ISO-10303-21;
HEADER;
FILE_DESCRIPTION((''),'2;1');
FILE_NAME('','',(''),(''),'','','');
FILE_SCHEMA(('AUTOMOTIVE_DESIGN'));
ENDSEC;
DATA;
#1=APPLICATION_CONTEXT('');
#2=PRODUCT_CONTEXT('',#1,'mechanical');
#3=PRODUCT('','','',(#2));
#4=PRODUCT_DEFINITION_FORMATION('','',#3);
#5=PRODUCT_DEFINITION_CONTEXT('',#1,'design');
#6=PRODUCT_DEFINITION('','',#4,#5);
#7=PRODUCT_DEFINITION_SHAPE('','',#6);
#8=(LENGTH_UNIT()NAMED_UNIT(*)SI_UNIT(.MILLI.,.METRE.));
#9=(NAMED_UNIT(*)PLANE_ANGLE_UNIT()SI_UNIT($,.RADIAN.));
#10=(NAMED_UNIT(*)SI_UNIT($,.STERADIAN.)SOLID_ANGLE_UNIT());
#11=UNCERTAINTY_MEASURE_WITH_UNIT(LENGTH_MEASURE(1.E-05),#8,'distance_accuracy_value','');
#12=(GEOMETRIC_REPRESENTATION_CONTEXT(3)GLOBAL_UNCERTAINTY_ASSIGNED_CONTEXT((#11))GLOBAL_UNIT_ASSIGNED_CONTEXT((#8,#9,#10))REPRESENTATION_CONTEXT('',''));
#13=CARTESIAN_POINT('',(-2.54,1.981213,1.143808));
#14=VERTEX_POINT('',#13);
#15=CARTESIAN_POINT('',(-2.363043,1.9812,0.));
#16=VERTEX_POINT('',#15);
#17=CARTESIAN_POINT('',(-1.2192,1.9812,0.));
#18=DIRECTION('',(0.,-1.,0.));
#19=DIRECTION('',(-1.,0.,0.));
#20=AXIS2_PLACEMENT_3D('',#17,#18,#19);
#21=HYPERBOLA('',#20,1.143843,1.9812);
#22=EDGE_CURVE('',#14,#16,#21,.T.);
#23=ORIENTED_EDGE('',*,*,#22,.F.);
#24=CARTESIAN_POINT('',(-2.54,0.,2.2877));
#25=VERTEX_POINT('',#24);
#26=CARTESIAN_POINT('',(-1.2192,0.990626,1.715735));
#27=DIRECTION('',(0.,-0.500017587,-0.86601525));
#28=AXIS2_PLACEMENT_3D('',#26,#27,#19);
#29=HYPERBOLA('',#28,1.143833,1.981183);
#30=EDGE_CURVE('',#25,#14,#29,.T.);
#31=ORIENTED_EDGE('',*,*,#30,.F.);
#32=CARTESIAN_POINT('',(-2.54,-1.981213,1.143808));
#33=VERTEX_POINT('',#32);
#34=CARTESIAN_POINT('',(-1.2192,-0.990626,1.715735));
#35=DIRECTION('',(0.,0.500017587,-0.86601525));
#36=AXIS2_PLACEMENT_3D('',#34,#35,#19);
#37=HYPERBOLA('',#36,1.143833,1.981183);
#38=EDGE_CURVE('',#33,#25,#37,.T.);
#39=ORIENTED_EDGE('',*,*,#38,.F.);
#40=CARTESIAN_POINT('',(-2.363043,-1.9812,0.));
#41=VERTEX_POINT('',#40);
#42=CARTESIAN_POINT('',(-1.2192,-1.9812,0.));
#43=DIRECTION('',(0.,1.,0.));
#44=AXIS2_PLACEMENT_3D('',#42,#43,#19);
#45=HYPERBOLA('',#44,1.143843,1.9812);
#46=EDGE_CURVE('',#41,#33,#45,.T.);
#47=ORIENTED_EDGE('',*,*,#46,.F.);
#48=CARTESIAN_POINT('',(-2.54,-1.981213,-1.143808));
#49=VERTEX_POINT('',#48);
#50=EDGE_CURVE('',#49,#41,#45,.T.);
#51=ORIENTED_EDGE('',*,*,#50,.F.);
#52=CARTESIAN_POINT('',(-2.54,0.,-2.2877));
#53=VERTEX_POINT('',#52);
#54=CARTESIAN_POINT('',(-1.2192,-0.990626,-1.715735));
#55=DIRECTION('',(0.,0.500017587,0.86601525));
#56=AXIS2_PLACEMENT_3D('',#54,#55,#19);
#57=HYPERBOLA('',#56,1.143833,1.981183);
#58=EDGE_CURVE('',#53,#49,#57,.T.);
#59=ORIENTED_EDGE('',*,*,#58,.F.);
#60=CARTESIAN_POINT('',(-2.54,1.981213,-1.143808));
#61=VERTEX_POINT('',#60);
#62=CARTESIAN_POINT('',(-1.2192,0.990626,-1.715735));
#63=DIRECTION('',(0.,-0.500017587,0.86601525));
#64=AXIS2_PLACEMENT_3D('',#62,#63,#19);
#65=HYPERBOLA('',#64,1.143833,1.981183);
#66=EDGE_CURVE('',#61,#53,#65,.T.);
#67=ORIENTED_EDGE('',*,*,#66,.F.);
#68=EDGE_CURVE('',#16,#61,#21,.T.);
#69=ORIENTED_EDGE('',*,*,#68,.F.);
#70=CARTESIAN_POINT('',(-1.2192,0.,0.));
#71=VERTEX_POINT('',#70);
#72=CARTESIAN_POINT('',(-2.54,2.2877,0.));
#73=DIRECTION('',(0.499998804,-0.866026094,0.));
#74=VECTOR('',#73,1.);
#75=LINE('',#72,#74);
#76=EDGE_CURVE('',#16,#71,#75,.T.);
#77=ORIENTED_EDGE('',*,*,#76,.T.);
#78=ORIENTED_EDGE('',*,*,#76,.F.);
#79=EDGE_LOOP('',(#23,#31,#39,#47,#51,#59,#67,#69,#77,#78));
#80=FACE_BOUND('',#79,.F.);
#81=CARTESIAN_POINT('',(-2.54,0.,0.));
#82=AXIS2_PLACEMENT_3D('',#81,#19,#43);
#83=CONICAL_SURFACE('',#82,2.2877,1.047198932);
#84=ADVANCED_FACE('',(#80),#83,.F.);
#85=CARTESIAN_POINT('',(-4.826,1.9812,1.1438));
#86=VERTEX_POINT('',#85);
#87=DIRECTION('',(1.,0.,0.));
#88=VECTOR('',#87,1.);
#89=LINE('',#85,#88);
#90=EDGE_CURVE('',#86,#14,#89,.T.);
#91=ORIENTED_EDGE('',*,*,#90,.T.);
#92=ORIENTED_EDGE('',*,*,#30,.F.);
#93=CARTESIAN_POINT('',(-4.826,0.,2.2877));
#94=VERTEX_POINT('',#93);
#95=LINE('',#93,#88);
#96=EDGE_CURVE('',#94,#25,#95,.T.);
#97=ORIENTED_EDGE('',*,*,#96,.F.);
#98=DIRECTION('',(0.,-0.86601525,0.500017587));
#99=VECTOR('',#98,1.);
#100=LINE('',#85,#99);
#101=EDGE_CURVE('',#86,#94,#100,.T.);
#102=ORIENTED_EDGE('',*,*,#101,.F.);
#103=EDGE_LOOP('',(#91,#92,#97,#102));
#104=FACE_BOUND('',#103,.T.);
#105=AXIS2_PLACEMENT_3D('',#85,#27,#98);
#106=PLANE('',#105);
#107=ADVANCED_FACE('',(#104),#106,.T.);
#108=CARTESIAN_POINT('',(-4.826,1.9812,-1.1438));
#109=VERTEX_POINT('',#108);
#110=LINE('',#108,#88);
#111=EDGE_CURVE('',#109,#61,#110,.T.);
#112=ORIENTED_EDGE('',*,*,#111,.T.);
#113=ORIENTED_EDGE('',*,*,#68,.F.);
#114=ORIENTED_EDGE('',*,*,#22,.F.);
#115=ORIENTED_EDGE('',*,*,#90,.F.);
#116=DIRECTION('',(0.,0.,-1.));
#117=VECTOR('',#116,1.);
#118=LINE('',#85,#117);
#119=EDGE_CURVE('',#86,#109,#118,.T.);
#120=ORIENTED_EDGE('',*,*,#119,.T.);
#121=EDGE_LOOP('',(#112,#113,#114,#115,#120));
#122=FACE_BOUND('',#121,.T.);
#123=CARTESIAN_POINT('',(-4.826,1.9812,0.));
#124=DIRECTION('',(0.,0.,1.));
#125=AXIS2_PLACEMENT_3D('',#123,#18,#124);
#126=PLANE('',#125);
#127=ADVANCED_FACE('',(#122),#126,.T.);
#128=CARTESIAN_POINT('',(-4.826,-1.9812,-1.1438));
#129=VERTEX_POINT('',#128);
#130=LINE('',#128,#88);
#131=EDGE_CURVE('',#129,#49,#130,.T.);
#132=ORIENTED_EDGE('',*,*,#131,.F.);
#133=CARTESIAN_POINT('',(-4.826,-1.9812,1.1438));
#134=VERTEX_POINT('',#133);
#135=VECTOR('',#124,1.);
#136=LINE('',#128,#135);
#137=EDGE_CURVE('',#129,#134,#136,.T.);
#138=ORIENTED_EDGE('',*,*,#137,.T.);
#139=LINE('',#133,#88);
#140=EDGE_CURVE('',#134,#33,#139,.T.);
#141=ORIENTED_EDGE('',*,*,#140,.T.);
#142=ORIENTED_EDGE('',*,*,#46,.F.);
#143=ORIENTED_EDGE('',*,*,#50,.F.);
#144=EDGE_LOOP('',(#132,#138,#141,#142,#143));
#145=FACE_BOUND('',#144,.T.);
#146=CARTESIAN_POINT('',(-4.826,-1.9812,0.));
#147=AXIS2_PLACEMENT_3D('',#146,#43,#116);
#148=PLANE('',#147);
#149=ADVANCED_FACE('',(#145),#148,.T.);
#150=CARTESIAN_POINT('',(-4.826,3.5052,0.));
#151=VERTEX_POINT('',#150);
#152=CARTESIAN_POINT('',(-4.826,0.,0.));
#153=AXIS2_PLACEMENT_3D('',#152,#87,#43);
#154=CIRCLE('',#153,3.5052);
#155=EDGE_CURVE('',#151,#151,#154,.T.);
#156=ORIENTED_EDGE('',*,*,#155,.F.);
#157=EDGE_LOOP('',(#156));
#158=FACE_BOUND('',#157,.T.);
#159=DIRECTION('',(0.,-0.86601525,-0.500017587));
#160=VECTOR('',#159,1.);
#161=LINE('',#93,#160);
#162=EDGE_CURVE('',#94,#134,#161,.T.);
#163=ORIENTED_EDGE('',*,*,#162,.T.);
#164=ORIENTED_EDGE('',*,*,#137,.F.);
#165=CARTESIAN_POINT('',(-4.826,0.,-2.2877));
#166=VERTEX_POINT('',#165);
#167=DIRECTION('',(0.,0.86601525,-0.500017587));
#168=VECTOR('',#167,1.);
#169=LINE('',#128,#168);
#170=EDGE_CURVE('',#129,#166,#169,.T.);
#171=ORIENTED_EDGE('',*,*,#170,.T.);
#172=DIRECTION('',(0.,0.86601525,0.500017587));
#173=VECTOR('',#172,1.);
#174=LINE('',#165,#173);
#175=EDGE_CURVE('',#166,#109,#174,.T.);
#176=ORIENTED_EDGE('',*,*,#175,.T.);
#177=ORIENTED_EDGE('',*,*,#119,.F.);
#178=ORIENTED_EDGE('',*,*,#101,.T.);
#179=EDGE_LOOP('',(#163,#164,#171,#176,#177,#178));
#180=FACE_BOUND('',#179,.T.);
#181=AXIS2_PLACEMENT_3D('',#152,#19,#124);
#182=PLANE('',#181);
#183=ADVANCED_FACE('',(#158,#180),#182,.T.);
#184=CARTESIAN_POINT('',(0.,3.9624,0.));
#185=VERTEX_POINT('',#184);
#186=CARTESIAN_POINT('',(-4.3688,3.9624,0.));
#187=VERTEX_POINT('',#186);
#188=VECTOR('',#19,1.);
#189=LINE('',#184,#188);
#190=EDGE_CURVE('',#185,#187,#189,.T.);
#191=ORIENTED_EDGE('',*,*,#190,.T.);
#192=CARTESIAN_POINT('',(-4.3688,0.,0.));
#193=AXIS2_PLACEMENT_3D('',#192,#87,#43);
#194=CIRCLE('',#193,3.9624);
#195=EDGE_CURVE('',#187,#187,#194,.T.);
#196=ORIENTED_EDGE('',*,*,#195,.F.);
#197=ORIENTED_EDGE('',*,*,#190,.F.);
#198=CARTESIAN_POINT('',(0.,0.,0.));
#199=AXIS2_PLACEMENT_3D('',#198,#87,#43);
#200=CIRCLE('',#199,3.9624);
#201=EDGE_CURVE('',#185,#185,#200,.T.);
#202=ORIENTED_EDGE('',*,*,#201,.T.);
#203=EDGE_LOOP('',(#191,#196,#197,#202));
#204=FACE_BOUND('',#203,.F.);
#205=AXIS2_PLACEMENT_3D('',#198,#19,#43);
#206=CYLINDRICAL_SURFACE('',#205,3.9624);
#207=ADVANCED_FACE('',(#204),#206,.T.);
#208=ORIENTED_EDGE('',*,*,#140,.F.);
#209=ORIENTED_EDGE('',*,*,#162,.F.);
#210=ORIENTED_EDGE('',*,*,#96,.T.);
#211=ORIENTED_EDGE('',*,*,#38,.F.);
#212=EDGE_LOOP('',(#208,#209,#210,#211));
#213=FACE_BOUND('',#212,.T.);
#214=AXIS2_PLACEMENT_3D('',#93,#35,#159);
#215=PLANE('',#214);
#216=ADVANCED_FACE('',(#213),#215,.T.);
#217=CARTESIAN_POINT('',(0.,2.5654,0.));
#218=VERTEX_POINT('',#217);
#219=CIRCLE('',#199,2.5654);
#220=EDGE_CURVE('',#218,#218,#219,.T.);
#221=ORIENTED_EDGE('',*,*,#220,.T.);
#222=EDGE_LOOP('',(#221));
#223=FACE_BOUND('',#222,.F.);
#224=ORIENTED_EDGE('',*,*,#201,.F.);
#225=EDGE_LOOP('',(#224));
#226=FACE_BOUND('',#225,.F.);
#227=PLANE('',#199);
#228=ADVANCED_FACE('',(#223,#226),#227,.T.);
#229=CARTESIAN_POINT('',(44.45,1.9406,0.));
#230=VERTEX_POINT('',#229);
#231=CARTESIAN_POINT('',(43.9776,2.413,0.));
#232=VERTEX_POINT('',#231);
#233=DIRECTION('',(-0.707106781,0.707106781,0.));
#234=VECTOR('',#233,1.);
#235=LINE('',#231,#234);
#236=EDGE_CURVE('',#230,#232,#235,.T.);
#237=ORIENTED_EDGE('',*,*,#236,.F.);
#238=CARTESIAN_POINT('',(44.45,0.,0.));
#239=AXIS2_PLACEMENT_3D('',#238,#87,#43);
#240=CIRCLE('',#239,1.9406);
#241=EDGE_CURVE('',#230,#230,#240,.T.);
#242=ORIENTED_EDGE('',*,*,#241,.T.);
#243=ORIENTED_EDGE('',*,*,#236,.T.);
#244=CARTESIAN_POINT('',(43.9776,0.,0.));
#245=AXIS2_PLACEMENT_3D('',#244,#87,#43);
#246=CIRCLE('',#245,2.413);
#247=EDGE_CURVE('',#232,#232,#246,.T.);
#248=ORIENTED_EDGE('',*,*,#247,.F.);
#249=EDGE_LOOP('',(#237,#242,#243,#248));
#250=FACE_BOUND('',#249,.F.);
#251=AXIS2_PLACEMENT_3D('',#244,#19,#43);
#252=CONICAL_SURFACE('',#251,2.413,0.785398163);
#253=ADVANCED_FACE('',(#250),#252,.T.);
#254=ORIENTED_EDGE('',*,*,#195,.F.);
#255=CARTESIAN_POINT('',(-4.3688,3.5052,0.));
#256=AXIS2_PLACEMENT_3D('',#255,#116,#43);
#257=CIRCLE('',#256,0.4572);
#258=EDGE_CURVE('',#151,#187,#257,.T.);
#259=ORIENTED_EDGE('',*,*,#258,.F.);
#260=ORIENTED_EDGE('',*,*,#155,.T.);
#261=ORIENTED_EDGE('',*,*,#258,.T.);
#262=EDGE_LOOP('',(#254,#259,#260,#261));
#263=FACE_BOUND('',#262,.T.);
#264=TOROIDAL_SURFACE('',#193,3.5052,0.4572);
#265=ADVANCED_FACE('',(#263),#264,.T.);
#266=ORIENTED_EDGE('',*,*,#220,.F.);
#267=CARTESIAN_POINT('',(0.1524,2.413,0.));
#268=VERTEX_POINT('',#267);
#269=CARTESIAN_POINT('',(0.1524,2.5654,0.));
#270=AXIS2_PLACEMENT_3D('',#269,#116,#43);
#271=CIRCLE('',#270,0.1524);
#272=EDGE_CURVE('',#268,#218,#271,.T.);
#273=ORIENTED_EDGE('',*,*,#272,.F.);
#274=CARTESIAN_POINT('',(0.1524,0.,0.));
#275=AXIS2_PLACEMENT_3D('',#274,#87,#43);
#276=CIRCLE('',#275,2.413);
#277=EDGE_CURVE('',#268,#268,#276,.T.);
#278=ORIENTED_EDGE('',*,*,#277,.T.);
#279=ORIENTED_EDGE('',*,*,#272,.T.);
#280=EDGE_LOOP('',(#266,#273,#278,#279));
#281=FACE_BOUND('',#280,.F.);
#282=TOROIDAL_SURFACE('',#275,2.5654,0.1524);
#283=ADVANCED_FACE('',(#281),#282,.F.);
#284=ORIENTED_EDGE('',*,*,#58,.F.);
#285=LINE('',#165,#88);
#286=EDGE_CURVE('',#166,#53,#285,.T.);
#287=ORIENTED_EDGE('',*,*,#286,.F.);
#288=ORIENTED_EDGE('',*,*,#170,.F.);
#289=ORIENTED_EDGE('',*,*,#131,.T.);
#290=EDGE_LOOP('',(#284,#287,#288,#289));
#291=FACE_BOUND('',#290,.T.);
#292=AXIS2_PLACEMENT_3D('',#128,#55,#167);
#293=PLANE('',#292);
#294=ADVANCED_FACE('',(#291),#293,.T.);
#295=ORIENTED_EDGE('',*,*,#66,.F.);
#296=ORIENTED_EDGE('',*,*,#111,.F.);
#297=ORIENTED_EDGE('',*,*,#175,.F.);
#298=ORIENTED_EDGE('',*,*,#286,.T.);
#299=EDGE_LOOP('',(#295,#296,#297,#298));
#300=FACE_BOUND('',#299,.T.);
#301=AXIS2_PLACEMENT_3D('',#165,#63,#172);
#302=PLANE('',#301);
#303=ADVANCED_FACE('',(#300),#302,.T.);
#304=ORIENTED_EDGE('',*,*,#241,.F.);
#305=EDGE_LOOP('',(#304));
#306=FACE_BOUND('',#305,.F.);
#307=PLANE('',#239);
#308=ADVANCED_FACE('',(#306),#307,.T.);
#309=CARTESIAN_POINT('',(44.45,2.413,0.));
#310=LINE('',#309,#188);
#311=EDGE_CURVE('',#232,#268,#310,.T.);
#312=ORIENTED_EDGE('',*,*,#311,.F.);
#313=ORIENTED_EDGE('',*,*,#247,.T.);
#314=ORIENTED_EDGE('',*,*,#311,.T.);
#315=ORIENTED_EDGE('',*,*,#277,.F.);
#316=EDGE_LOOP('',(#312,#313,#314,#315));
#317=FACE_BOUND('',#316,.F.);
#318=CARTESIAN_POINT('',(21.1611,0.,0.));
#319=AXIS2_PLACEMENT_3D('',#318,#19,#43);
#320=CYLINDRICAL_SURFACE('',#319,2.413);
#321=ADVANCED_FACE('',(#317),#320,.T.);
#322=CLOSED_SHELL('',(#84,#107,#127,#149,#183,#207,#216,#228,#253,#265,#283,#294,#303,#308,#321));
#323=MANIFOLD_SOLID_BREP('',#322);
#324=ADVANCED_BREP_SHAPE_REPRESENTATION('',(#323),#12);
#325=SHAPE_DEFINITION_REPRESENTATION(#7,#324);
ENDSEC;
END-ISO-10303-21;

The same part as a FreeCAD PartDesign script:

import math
import FreeCAD as App
import Part
import Sketcher
Q = App.Units.Quantity


def edges_at(feature, points):
    """Names of the edges that pass closest to the given points."""
    edges = feature.Shape.Edges
    near = lambda p: min(range(len(edges)), key=lambda i: edges[i].distToShape(Part.Vertex(*p))[0])
    return sorted({f"Edge{near(p) + 1}" for p in points})


def add_polygon(sketch, points):
    """Adds a closed chain of lines whose ends are joined by coincident constraints."""
    first, n = sketch.GeometryCount, len(points)
    for a, b in zip(points, points[1:] + points[:1]):
        sketch.addGeometry(Part.LineSegment(App.Vector(*a, 0), App.Vector(*b, 0)), False)
    for i in range(n):
        sketch.addConstraint(Sketcher.Constraint("Coincident", first + i, 2, first + (i + 1) % n, 1))

doc = App.newDocument("Part")
body = doc.addObject("PartDesign::Body", "Body")

# Sketch on XY plane
sketch1 = doc.addObject("Sketcher::SketchObject", "Sketch")
body.addObject(sketch1)
sketch1.AttachmentSupport = (doc.XY_Plane, [""])
sketch1.MapMode = "FlatFace"
add_polygon(sketch1, [(-2.54, 2.2877), (-1.2192, 0), (44.45, 0), (44.45, 2.413), (0, 2.413), (0, 3.9624), (-4.826, 3.9624), (-4.826, 2.2877)])  # lines 0-7
sketch1.addConstraint(Sketcher.Constraint("Horizontal", 1))
sketch1.addConstraint(Sketcher.Constraint("Vertical", 2))
sketch1.addConstraint(Sketcher.Constraint("Horizontal", 3))
sketch1.addConstraint(Sketcher.Constraint("Vertical", 4))
sketch1.addConstraint(Sketcher.Constraint("Horizontal", 5))
sketch1.addConstraint(Sketcher.Constraint("Vertical", 6))
sketch1.addConstraint(Sketcher.Constraint("Horizontal", 7))
sketch1.addConstraint(Sketcher.Constraint("PointOnObject", 0, 2, -1))
sketch1.addConstraint(Sketcher.Constraint("PointOnObject", 3, 2, -2))
sketch1.addConstraint(Sketcher.Constraint("Angle", 0, Q("-60 deg")))
sketch1.addConstraint(Sketcher.Constraint("DistanceX", 3, 2, 3, 1, Q("1.75 in")))
sketch1.addConstraint(Sketcher.Constraint("DistanceX", 5, 2, 5, 1, Q("0.19 in")))
sketch1.addConstraint(Sketcher.Constraint("DistanceX", 7, 1, 7, 2, Q("0.09 in")))
sketch1.addConstraint(Sketcher.Constraint("DistanceX", 1, 1, 1, 2, Q("1.798 in")))
sketch1.addConstraint(Sketcher.Constraint("DistanceY", 2, 1, 2, 2, Q("0.095 in")))
sketch1.addConstraint(Sketcher.Constraint("DistanceY", 4, 1, 4, 2, Q("0.061 in")))
revolution = doc.addObject("PartDesign::Revolution", "Revolution")
body.addObject(revolution)
revolution.Profile = sketch1
revolution.ReferenceAxis = (sketch1, ["H_Axis"])
revolution.Angle = 360

# Sketch on YZ plane
sketch2 = doc.addObject("Sketcher::SketchObject", "Sketch001")
body.addObject(sketch2)
sketch2.AttachmentSupport = (doc.YZ_Plane, [""])
sketch2.MapMode = "FlatFace"
sketch2.AttachmentOffset = App.Placement(App.Vector(0, 0, -0.19 * 25.4), App.Rotation())
sketch2.addGeometry(Part.LineSegment(App.Vector(1.9812, 1.1438, 0), App.Vector(0, 2.2877, 0)), False)
sketch2.addGeometry(Part.ArcOfCircle(Part.Circle(App.Vector(0, 0, 0), App.Vector(0, 0, 1), 2.2877), math.radians(29.998995), math.radians(90)), False)
sketch2.addGeometry(Part.ArcOfCircle(Part.Circle(App.Vector(0, 0, 0), App.Vector(0, 0, 1), 2.2877), math.radians(90), math.radians(150.001005)), False)
sketch2.addGeometry(Part.LineSegment(App.Vector(0, 2.2877, 0), App.Vector(-1.9812, 1.1438, 0)), False)
sketch2.addGeometry(Part.ArcOfCircle(Part.Circle(App.Vector(0, 0, 0), App.Vector(0, 0, 1), 2.2877), math.radians(-29.998995), math.radians(29.998995)), False)
sketch2.addGeometry(Part.LineSegment(App.Vector(1.9812, 1.1438, 0), App.Vector(1.9812, -1.1438, 0)), False)
sketch2.addGeometry(Part.LineSegment(App.Vector(-1.9812, 1.1438, 0), App.Vector(-1.9812, -1.1438, 0)), False)
sketch2.addGeometry(Part.ArcOfCircle(Part.Circle(App.Vector(0, 0, 0), App.Vector(0, 0, 1), 2.2877), math.radians(150.001005), math.radians(209.998995)), False)
sketch2.addGeometry(Part.LineSegment(App.Vector(-1.9812, -1.1438, 0), App.Vector(0, -2.2877, 0)), False)
sketch2.addGeometry(Part.ArcOfCircle(Part.Circle(App.Vector(0, 0, 0), App.Vector(0, 0, 1), 2.2877), math.radians(-150.001005), math.radians(-90)), False)
sketch2.addGeometry(Part.ArcOfCircle(Part.Circle(App.Vector(0, 0, 0), App.Vector(0, 0, 1), 2.2877), math.radians(-90), math.radians(-29.998995)), False)
sketch2.addGeometry(Part.LineSegment(App.Vector(0, -2.2877, 0), App.Vector(1.9812, -1.1438, 0)), False)
sketch2.addConstraint(Sketcher.Constraint("Coincident", 0, 1, 1, 1))
sketch2.addConstraint(Sketcher.Constraint("Coincident", 1, 2, 0, 2))
sketch2.addConstraint(Sketcher.Constraint("Coincident", 2, 1, 3, 1))
sketch2.addConstraint(Sketcher.Constraint("Coincident", 3, 2, 2, 2))
sketch2.addConstraint(Sketcher.Constraint("Coincident", 4, 1, 5, 2))
sketch2.addConstraint(Sketcher.Constraint("Coincident", 5, 1, 4, 2))
sketch2.addConstraint(Sketcher.Constraint("Coincident", 6, 1, 7, 1))
sketch2.addConstraint(Sketcher.Constraint("Coincident", 7, 2, 6, 2))
sketch2.addConstraint(Sketcher.Constraint("Coincident", 8, 1, 9, 1))
sketch2.addConstraint(Sketcher.Constraint("Coincident", 9, 2, 8, 2))
sketch2.addConstraint(Sketcher.Constraint("Coincident", 10, 1, 11, 1))
sketch2.addConstraint(Sketcher.Constraint("Coincident", 11, 2, 10, 2))
sketch2.addConstraint(Sketcher.Constraint("Vertical", 5))
sketch2.addConstraint(Sketcher.Constraint("Vertical", 6))
sketch2.addConstraint(Sketcher.Constraint("Coincident", 1, 3, -1, 1))
sketch2.addConstraint(Sketcher.Constraint("Coincident", 2, 3, -1, 1))
sketch2.addConstraint(Sketcher.Constraint("Coincident", 4, 3, -1, 1))
sketch2.addConstraint(Sketcher.Constraint("Coincident", 7, 3, -1, 1))
sketch2.addConstraint(Sketcher.Constraint("Coincident", 9, 3, -1, 1))
sketch2.addConstraint(Sketcher.Constraint("Coincident", 10, 3, -1, 1))
sketch2.addConstraint(Sketcher.Constraint("Coincident", 2, 1, 1, 2))
sketch2.addConstraint(Sketcher.Constraint("Coincident", 5, 1, 0, 1))
sketch2.addConstraint(Sketcher.Constraint("Coincident", 6, 1, 3, 2))
sketch2.addConstraint(Sketcher.Constraint("Coincident", 8, 1, 7, 2))
sketch2.addConstraint(Sketcher.Constraint("Coincident", 10, 1, 9, 2))
sketch2.addConstraint(Sketcher.Constraint("PointOnObject", 1, 2, -2))
sketch2.addConstraint(Sketcher.Constraint("PointOnObject", 9, 2, -2))
sketch2.addConstraint(Sketcher.Constraint("Parallel", 0, 8))
sketch2.addConstraint(Sketcher.Constraint("Parallel", 3, 11))
sketch2.addConstraint(Sketcher.Constraint("Angle", 0, Q("149.9988 deg")))
sketch2.addConstraint(Sketcher.Constraint("Radius", 1, Q("2.2877 mm")))
pad1 = doc.addObject("PartDesign::Pad", "Pad")
body.addObject(pad1)
pad1.Profile = sketch2
pad1.Length = 2.463
doc.recompute()

fillet = doc.addObject("PartDesign::Fillet", "Fillet")
body.addObject(fillet)
fillet.Base = (pad1, edges_at(pad1, [(-4.826, -3.962, 0)]))
fillet.Radius = Q("0.018 in")
doc.recompute()

chamfer = doc.addObject("PartDesign::Chamfer", "Chamfer")
body.addObject(chamfer)
chamfer.Base = (fillet, edges_at(fillet, [(44.45, -2.413, 0)]))
chamfer.ChamferType = "Two distances"
chamfer.Size = Q("0.0185984 in")
chamfer.Size2 = Q("0.0185984 in")
doc.recompute()

fillet2 = doc.addObject("PartDesign::Fillet", "Fillet001")
body.addObject(fillet2)
fillet2.Base = (chamfer, edges_at(chamfer, [(0, -2.413, 0)]))
fillet2.Radius = Q("0.006 in")

doc.recompute()
